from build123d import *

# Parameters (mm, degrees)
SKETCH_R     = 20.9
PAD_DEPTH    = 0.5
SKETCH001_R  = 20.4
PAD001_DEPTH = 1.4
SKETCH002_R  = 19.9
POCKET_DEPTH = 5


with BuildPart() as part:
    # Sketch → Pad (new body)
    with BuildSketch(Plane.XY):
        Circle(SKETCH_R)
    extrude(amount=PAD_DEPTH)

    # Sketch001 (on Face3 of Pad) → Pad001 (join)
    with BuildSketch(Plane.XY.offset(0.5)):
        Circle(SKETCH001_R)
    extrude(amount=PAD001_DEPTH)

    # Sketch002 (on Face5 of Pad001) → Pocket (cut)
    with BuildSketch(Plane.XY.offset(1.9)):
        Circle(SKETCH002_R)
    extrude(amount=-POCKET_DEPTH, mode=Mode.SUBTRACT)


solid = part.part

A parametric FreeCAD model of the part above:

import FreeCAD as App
import Part
import Sketcher

doc = App.newDocument("Part")
params = doc.addObject("Spreadsheet::Sheet", "Params")
for row, (alias, value) in enumerate([
    ("sketch1_diameter", "41.8 mm"),
    ("pad1_length", "0.5 mm"),
    ("sketch2_diameter", "40.8 mm"),
    ("pad2_length", "1.4 mm"),
    ("sketch3_diameter", "39.8 mm"),
    ("pocket1_length", "5 mm"),
], start=1):
    params.set(f"A{row}", alias)
    params.set(f"B{row}", "=" + value)
    params.setAlias(f"B{row}", alias)

body = doc.addObject("PartDesign::Body", "Body")

# Sketch on XY plane
sketch1 = body.newObject("Sketcher::SketchObject", "Sketch")
sketch1.AttachmentSupport = (doc.getObject("XY_Plane"), [""])
sketch1.MapMode = "FlatFace"
sketch1.addGeometry(Part.Circle(App.Vector(0, 0, 0), App.Vector(0, 0, 1), 20.9), False)
sketch1.addConstraint([
    Sketcher.Constraint("Coincident", 0, 3, -1, 1),
    Sketcher.Constraint("Diameter", 0, 41.8),
])
sketch1.setExpression("Constraints[1]", "Params.sketch1_diameter")
pad1 = body.newObject("PartDesign::Pad", "Pad")
pad1.Profile = sketch1
pad1.setExpression("Length", "Params.pad1_length")

# Sketch on XY plane
sketch2 = body.newObject("Sketcher::SketchObject", "Sketch001")
sketch2.AttachmentSupport = (doc.getObject("XY_Plane"), [""])
sketch2.MapMode = "FlatFace"
sketch2.AttachmentOffset = App.Placement(App.Vector(0, 0, 0.5), App.Rotation())
sketch2.addGeometry(Part.Circle(App.Vector(0, 0, 0), App.Vector(0, 0, 1), 20.4), False)
sketch2.addConstraint([
    Sketcher.Constraint("Coincident", 0, 3, -1, 1),
    Sketcher.Constraint("Diameter", 0, 40.8),
])
sketch2.setExpression("Constraints[1]", "Params.sketch2_diameter")
pad2 = body.newObject("PartDesign::Pad", "Pad001")
pad2.Profile = sketch2
pad2.setExpression("Length", "Params.pad2_length")

# Sketch on XY plane
sketch3 = body.newObject("Sketcher::SketchObject", "Sketch002")
sketch3.AttachmentSupport = (doc.getObject("XY_Plane"), [""])
sketch3.MapMode = "FlatFace"
sketch3.AttachmentOffset = App.Placement(App.Vector(0, 0, 1.9), App.Rotation())
sketch3.addGeometry(Part.Circle(App.Vector(0, 0, 0), App.Vector(0, 0, 1), 19.9), False)
sketch3.addConstraint([
    Sketcher.Constraint("Coincident", 0, 3, -1, 1),
    Sketcher.Constraint("Diameter", 0, 39.8),
])
sketch3.setExpression("Constraints[1]", "Params.sketch3_diameter")
pocket1 = body.newObject("PartDesign::Pocket", "Pocket")
pocket1.Profile = sketch3
pocket1.setExpression("Length", "Params.pocket1_length")

doc.recompute()
